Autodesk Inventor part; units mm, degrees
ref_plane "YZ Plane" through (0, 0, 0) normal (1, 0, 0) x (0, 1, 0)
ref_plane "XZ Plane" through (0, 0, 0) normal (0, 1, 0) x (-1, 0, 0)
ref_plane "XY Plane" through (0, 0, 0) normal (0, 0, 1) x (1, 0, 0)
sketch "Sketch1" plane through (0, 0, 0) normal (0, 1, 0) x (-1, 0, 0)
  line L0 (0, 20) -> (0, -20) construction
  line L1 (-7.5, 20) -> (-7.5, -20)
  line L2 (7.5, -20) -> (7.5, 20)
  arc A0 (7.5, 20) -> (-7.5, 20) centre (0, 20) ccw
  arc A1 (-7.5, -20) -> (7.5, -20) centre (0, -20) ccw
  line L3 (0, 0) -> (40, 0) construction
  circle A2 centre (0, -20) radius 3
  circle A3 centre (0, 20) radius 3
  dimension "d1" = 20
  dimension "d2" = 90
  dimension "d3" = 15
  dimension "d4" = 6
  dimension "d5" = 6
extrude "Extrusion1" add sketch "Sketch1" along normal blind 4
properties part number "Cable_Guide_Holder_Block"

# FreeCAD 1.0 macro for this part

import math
import FreeCAD as App
import Part
import Sketcher

doc = App.newDocument("Part")
params = doc.addObject("Spreadsheet::Sheet", "Params")
for row, (alias, value) in enumerate([
    ("sketch1_diameter", "6 mm"),
    ("sketch1_radius", "7.5 mm"),
    ("pad1_length", "4 mm"),
], start=1):
    params.set(f"A{row}", alias)
    params.set(f"B{row}", "=" + value)
    params.setAlias(f"B{row}", alias)

body = doc.addObject("PartDesign::Body", "Body")

sketch1 = body.newObject("Sketcher::SketchObject", "Sketch")
sketch1.AttachmentSupport = (doc.getObject("XZ_Plane"), [""])
sketch1.MapMode = "FlatFace"
sketch1.addGeometry([
    Part.ArcOfCircle(Part.Circle(App.Vector(0, 20, 0), App.Vector(0, 0, 1), 7.5), math.radians(0), math.radians(180)),
    Part.LineSegment(App.Vector(7.5, 20, 0), App.Vector(7.5, -20, 0)),
    Part.ArcOfCircle(Part.Circle(App.Vector(0, -20, 0), App.Vector(0, 0, 1), 7.5), math.radians(180), math.radians(360)),
    Part.LineSegment(App.Vector(-7.5, -20, 0), App.Vector(-7.5, 20, 0)),
    Part.Circle(App.Vector(0, -20, 0), App.Vector(0, 0, 1), 3),
    Part.Circle(App.Vector(0, 20, 0), App.Vector(0, 0, 1), 3),
], False)
sketch1.addConstraint([
    Sketcher.Constraint("Tangent", 0, 1, 1, 1),
    Sketcher.Constraint("Tangent", 1, 2, 2, 2),
    Sketcher.Constraint("Tangent", 2, 1, 3, 1),
    Sketcher.Constraint("Tangent", 3, 2, 0, 2),
    Sketcher.Constraint("Vertical", 1),
    Sketcher.Constraint("Vertical", 3),
    Sketcher.Constraint("Coincident", 4, 3, 2, 3),
    Sketcher.Constraint("Coincident", 5, 3, 0, 3),
    Sketcher.Constraint("Equal", 4, 5),
    Sketcher.Constraint("Symmetric", 0, 3, 2, 3, -1, 1),
    Sketcher.Constraint("Diameter", 4, 6.0),
    Sketcher.Constraint("Radius", 0, 7.5),
    Sketcher.Constraint("DistanceY", -1, 1, 0, 3, 20.0),
])
sketch1.setExpression("Constraints[10]", "Params.sketch1_diameter")
sketch1.setExpression("Constraints[11]", "Params.sketch1_radius")
pad1 = body.newObject("PartDesign::Pad", "Pad")
pad1.Profile = sketch1
pad1.setExpression("Length", "Params.pad1_length")
pad1.Reversed = True

doc.recompute()
